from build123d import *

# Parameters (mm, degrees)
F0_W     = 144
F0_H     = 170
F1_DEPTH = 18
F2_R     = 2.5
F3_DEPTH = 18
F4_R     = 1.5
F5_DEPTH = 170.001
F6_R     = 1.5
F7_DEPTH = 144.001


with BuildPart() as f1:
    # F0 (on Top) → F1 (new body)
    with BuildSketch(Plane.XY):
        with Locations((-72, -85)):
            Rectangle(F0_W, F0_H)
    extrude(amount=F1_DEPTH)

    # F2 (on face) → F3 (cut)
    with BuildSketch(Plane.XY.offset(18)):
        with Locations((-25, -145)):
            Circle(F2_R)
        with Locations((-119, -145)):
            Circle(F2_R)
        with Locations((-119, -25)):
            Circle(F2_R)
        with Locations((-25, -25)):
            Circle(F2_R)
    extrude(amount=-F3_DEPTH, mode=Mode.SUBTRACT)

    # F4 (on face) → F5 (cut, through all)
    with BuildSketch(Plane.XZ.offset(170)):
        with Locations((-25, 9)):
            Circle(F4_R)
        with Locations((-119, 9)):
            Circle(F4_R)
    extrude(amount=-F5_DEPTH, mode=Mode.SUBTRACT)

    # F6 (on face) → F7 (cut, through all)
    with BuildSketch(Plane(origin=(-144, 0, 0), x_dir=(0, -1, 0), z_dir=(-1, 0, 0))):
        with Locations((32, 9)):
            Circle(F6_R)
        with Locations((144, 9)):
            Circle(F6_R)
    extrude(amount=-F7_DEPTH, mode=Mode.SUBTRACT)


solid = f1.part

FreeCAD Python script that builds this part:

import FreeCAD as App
import Part
import Sketcher
from FreeCAD import Vector
Q = App.Units.Quantity

doc = App.newDocument("Part")
body = doc.addObject("PartDesign::Body", "Body")

sketch1 = body.newObject("Sketcher::SketchObject", "Sketch")
sketch1.AttachmentSupport = (doc.getObject("XY_Plane"), [""])
sketch1.MapMode = "FlatFace"
sketch1.addGeometry([
    Part.LineSegment(Vector(-144, 0, 0), Vector(-144, -170, 0)),
    Part.LineSegment(Vector(-144, -170, 0), Vector(0, -170, 0)),
    Part.LineSegment(Vector(0, -170, 0), Vector(0, 0, 0)),
    Part.LineSegment(Vector(0, 0, 0), Vector(-144, 0, 0)),
], False)
sketch1.addConstraint([
    Sketcher.Constraint("Coincident", 0, 2, 1, 1),
    Sketcher.Constraint("Coincident", 1, 2, 2, 1),
    Sketcher.Constraint("Coincident", 2, 2, 3, 1),
    Sketcher.Constraint("Coincident", 3, 2, 0, 1),
    Sketcher.Constraint("Vertical", 0),
    Sketcher.Constraint("Horizontal", 1),
    Sketcher.Constraint("Vertical", 2),
    Sketcher.Constraint("Horizontal", 3),
    Sketcher.Constraint("Coincident", 2, 2, -1, 1),
    Sketcher.Constraint("DistanceX", 1, 1, 1, 2, Q("144 mm")),
    Sketcher.Constraint("DistanceY", 0, 2, 0, 1, Q("170 mm")),
])
pad1 = body.newObject("PartDesign::Pad", "Pad")
pad1.Profile = sketch1
pad1.Length = 18

sketch2 = body.newObject("Sketcher::SketchObject", "Sketch001")
sketch2.AttachmentSupport = (doc.getObject("XY_Plane"), [""])
sketch2.MapMode = "FlatFace"
sketch2.AttachmentOffset = App.Placement(Vector(0, 0, 18), App.Rotation())
sketch2.addGeometry([
    Part.Circle(Vector(-25, -145, 0), Vector(0, 0, 1), 2.5),
    Part.Circle(Vector(-119, -145, 0), Vector(0, 0, 1), 2.5),
    Part.Circle(Vector(-119, -25, 0), Vector(0, 0, 1), 2.5),
    Part.Circle(Vector(-25, -25, 0), Vector(0, 0, 1), 2.5),
], False)
sketch2.addConstraint([
    Sketcher.Constraint("Equal", 0, 1),
    Sketcher.Constraint("Equal", 1, 2),
    Sketcher.Constraint("Equal", 2, 3),
    Sketcher.Constraint("Horizontal", 0, 3, 1, 3),
    Sketcher.Constraint("Horizontal", 2, 3, 3, 3),
    Sketcher.Constraint("Vertical", 1, 3, 2, 3),
    Sketcher.Constraint("Vertical", 0, 3, 3, 3),
    Sketcher.Constraint("Diameter", 0, Q("5 mm")),
    Sketcher.Constraint("DistanceX", 0, 3, -1, 1, Q("25 mm")),
    Sketcher.Constraint("DistanceY", 0, 3, -1, 1, Q("145 mm")),
    Sketcher.Constraint("DistanceX", 1, 3, -1, 1, Q("119 mm")),
    Sketcher.Constraint("DistanceY", 2, 3, -1, 1, Q("25 mm")),
])
pocket1 = body.newObject("PartDesign::Pocket", "Pocket")
pocket1.Profile = sketch2
pocket1.Length = 18

sketch3 = body.newObject("Sketcher::SketchObject", "Sketch002")
sketch3.AttachmentSupport = (doc.getObject("XZ_Plane"), [""])
sketch3.MapMode = "FlatFace"
sketch3.AttachmentOffset = App.Placement(Vector(0, 0, 170), App.Rotation())
sketch3.addGeometry([
    Part.Circle(Vector(-25, 9, 0), Vector(0, 0, 1), 1.5),
    Part.Circle(Vector(-119, 9, 0), Vector(0, 0, 1), 1.5),
], False)
sketch3.addConstraint([
    Sketcher.Constraint("Equal", 0, 1),
    Sketcher.Constraint("Horizontal", 0, 3, 1, 3),
    Sketcher.Constraint("Diameter", 0, Q("3 mm")),
    Sketcher.Constraint("DistanceX", 0, 3, -1, 1, Q("25 mm")),
    Sketcher.Constraint("DistanceY", -1, 1, 0, 3, Q("9 mm")),
    Sketcher.Constraint("DistanceX", 1, 3, -1, 1, Q("119 mm")),
])
pocket2 = body.newObject("PartDesign::Pocket", "Pocket001")
pocket2.Profile = sketch3
pocket2.Type = "ThroughAll"

sketch4 = body.newObject("Sketcher::SketchObject", "Sketch003")
sketch4.AttachmentSupport = (doc.getObject("YZ_Plane"), [""])
sketch4.MapMode = "FlatFace"
sketch4.AttachmentOffset = App.Placement(Vector(0, 0, -144), App.Rotation())
sketch4.addGeometry([
    Part.Circle(Vector(-32, 9, 0), Vector(0, 0, 1), 1.5),
    Part.Circle(Vector(-144, 9, 0), Vector(0, 0, 1), 1.5),
], False)
sketch4.addConstraint([
    Sketcher.Constraint("Equal", 0, 1),
    Sketcher.Constraint("Horizontal", 0, 3, 1, 3),
    Sketcher.Constraint("Diameter", 0, Q("3 mm")),
    Sketcher.Constraint("DistanceX", 0, 3, -1, 1, Q("32 mm")),
    Sketcher.Constraint("DistanceY", -1, 1, 0, 3, Q("9 mm")),
    Sketcher.Constraint("DistanceX", 1, 3, -1, 1, Q("144 mm")),
])
pocket3 = body.newObject("PartDesign::Pocket", "Pocket002")
pocket3.Profile = sketch4
pocket3.Type = "ThroughAll"
pocket3.Reversed = True

doc.recompute()
